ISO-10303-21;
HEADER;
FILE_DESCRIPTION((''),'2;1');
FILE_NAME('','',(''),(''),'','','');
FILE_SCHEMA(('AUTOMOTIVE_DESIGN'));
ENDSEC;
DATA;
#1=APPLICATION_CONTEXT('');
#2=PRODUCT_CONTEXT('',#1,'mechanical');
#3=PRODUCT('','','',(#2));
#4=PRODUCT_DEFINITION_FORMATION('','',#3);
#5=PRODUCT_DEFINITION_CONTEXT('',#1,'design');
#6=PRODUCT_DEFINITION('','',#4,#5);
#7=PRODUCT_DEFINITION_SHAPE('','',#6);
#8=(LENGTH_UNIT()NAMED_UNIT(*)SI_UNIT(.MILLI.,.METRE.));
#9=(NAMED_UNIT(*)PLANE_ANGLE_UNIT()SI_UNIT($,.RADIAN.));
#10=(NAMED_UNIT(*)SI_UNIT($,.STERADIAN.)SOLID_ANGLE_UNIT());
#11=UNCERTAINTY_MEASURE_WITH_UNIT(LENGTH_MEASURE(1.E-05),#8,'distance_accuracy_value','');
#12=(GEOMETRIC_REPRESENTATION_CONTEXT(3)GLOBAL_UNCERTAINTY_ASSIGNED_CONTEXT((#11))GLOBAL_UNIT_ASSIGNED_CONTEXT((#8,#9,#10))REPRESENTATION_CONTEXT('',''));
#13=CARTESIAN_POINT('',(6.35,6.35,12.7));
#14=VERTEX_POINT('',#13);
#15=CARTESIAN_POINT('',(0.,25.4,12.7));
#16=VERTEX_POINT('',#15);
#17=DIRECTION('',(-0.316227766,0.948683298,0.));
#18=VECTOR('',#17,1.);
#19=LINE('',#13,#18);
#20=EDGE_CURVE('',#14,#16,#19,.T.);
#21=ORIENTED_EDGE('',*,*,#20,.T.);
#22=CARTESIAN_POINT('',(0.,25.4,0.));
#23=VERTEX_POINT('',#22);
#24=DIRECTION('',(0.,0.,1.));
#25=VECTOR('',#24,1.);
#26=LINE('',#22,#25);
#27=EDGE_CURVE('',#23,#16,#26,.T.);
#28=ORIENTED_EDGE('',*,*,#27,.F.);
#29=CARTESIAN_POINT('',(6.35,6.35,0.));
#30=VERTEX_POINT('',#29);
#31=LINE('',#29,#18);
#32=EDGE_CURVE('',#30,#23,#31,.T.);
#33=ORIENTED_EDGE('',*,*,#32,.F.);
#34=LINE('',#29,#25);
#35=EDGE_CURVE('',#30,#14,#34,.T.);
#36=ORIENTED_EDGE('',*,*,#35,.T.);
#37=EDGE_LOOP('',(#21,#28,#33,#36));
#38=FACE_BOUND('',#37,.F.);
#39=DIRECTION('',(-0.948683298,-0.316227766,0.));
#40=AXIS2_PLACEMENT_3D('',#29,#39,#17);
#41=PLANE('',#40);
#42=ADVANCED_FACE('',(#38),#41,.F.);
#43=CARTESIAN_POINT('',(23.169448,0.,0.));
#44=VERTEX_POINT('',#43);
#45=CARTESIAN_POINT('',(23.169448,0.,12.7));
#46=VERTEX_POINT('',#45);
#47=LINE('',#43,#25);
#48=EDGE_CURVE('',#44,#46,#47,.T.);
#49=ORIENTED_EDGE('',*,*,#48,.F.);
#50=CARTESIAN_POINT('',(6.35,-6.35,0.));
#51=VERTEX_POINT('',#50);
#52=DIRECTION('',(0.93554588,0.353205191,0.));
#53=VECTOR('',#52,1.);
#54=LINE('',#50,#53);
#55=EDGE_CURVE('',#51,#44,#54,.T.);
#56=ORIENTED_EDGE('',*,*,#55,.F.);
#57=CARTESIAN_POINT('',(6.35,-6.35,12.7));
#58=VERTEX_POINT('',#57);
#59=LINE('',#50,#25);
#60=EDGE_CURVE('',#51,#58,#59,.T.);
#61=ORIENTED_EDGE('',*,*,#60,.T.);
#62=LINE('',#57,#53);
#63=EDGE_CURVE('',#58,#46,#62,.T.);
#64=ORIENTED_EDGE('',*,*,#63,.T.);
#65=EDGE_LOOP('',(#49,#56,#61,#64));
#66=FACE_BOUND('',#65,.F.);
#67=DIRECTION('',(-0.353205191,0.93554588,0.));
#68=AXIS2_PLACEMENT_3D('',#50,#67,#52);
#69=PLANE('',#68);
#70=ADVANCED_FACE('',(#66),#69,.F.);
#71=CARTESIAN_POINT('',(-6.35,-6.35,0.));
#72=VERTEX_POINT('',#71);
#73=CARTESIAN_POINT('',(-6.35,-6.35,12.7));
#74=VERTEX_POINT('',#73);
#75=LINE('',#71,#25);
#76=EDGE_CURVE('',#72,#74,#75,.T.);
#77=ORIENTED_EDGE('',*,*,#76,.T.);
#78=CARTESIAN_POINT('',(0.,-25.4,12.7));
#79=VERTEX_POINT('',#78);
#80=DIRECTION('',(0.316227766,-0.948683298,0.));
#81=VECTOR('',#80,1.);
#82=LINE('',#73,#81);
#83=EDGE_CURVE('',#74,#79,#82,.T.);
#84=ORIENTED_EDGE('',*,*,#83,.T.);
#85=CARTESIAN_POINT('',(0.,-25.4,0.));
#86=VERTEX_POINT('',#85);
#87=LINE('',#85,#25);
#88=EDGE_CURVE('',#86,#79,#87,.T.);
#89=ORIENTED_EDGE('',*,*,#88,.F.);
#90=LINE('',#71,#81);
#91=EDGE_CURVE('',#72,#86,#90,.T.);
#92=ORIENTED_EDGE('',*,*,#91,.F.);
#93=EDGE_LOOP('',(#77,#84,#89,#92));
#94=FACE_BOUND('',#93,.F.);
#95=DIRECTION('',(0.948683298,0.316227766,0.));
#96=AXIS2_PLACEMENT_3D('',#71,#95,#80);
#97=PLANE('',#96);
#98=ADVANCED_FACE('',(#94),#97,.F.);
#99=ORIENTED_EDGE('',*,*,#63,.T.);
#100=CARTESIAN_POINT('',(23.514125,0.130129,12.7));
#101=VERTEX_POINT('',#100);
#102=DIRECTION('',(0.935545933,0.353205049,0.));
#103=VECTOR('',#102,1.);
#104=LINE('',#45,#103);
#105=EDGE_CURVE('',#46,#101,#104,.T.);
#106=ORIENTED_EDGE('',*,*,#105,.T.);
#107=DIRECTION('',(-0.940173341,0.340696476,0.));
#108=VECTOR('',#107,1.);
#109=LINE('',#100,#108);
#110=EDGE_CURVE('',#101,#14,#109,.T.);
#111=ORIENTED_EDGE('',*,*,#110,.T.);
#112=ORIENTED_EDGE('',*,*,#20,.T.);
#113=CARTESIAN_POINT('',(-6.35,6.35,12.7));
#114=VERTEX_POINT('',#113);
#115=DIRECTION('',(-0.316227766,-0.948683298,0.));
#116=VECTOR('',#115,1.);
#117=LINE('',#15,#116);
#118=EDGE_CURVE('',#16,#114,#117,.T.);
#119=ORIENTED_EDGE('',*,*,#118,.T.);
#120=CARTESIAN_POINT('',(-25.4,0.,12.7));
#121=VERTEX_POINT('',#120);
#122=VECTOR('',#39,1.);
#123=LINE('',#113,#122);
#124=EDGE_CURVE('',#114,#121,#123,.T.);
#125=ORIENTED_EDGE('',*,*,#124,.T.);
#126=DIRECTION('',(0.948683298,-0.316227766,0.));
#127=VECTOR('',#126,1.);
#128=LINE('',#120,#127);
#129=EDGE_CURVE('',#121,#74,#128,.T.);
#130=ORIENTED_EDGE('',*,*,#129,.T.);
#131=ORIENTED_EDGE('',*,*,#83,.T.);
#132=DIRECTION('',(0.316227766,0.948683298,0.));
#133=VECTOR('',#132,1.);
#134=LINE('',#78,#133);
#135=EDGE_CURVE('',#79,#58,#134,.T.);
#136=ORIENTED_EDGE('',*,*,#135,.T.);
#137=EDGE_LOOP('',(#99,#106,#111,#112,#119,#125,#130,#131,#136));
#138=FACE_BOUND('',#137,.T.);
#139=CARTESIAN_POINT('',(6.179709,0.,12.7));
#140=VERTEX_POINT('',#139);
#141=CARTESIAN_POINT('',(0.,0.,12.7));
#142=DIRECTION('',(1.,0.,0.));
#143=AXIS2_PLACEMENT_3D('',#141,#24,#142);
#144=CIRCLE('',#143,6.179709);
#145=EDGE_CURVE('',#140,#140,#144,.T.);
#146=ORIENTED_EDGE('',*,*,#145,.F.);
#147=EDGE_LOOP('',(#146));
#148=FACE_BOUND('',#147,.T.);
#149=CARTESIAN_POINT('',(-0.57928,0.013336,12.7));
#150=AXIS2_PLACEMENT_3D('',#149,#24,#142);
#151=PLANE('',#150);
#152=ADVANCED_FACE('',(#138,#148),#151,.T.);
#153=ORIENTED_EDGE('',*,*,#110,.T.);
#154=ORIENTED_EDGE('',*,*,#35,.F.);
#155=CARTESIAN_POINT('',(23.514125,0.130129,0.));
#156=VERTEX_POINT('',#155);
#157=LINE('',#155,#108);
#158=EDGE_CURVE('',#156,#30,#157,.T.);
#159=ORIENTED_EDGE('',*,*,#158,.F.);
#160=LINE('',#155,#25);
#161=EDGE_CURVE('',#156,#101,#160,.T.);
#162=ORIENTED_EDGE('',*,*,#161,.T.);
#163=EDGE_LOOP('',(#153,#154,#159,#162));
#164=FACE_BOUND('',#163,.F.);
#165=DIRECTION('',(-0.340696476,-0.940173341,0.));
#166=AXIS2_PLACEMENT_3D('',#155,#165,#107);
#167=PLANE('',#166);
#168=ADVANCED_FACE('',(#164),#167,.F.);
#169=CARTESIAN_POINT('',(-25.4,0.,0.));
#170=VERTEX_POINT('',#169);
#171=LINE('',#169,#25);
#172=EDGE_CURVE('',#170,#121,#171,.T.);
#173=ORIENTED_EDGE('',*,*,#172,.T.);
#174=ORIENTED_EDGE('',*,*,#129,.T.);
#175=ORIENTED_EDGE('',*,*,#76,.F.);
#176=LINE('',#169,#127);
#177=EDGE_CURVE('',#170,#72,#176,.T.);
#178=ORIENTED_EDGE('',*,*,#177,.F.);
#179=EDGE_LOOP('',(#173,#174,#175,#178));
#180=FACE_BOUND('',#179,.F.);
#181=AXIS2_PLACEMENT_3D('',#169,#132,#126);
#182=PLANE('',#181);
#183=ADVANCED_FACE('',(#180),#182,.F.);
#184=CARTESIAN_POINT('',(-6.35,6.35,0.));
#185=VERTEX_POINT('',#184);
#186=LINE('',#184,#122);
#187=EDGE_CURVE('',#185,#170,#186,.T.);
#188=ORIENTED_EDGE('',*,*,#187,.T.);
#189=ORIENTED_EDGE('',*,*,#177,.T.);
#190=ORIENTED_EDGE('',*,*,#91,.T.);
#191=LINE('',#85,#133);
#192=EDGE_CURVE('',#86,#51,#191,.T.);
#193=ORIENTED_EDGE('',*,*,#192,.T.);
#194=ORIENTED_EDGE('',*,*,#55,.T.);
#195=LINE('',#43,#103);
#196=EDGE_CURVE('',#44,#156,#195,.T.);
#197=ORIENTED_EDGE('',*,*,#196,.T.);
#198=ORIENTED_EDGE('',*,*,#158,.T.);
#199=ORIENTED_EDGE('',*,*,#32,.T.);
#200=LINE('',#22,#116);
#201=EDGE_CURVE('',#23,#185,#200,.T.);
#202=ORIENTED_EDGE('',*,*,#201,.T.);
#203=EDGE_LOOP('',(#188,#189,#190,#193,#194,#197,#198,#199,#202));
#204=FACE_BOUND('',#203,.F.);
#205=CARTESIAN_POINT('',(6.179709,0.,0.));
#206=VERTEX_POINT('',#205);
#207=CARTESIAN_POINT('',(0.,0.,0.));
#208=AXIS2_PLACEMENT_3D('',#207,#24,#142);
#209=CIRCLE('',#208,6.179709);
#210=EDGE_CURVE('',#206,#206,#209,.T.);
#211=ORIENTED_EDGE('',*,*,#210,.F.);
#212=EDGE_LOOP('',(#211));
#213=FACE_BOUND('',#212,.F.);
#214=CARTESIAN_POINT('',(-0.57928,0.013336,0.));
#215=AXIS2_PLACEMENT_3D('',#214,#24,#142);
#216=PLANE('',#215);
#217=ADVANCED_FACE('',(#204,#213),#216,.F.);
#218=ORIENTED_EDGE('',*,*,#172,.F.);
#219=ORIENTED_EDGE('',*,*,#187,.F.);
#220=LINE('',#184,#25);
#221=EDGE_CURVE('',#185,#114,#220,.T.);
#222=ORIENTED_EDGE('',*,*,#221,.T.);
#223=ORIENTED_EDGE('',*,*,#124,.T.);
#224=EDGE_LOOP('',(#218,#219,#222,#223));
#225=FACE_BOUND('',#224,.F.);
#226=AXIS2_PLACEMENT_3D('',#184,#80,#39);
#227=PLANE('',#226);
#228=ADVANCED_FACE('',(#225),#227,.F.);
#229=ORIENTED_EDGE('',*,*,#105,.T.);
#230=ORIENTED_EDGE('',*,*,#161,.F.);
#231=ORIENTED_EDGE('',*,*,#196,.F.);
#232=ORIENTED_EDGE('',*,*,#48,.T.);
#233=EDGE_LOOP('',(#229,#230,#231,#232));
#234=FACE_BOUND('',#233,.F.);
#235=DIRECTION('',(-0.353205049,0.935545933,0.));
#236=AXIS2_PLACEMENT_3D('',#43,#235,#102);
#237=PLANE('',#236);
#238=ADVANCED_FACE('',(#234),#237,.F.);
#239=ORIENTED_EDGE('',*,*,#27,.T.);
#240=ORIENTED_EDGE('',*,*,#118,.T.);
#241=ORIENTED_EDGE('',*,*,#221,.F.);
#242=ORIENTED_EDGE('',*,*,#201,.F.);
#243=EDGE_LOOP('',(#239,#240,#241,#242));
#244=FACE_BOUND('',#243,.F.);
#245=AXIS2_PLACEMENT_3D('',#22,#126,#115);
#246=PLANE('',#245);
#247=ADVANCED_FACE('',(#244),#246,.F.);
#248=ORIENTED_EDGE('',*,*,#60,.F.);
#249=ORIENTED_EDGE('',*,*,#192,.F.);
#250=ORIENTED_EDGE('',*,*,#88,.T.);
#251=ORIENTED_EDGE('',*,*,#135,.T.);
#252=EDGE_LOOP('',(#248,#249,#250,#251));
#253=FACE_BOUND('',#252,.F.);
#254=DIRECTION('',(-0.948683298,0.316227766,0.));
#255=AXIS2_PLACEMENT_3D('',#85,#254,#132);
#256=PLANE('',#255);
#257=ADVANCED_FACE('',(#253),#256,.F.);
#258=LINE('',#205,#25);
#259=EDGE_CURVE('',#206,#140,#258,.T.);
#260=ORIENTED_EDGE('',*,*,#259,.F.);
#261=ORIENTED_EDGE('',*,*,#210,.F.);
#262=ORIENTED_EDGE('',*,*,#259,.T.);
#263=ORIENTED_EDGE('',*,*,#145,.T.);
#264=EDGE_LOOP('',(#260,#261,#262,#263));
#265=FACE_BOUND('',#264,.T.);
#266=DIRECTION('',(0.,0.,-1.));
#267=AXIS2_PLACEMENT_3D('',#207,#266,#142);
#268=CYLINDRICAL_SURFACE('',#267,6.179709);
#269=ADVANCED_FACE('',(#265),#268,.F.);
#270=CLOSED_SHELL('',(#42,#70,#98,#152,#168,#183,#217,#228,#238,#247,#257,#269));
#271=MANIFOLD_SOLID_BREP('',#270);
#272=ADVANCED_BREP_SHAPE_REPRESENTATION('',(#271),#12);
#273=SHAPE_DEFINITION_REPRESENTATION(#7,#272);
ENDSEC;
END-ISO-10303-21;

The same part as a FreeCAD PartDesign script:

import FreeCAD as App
import Part
import Sketcher
Q = App.Units.Quantity

doc = App.newDocument("Part")
body = doc.addObject("PartDesign::Body", "Body")

# Sketch on XY plane
sketch1 = doc.addObject("Sketcher::SketchObject", "Sketch")
body.addObject(sketch1)
sketch1.AttachmentSupport = (doc.XY_Plane, [""])
sketch1.MapMode = "FlatFace"
sketch1.addGeometry([
    Part.LineSegment(App.Vector(6.35, -6.35, 0), App.Vector(23.169448, 0, 0)),  # 0
    Part.LineSegment(App.Vector(23.169448, 0, 0), App.Vector(23.514125, 0.130129, 0)),  # 1
    Part.LineSegment(App.Vector(23.514125, 0.130129, 0), App.Vector(6.35, 6.35, 0)),  # 2
    Part.LineSegment(App.Vector(6.35, 6.35, 0), App.Vector(0, 25.4, 0)),  # 3
    Part.LineSegment(App.Vector(0, 25.4, 0), App.Vector(-6.35, 6.35, 0)),  # 4
    Part.LineSegment(App.Vector(-6.35, 6.35, 0), App.Vector(-25.4, 0, 0)),  # 5
    Part.LineSegment(App.Vector(-25.4, 0, 0), App.Vector(-6.35, -6.35, 0)),  # 6
    Part.LineSegment(App.Vector(-6.35, -6.35, 0), App.Vector(0, -25.4, 0)),  # 7
    Part.LineSegment(App.Vector(0, -25.4, 0), App.Vector(6.35, -6.35, 0)),  # 8
    Part.Circle(App.Vector(0, 0, 0), App.Vector(0, 0, 1), 6.179709),  # 9
], False)
sketch1.addConstraint([
    Sketcher.Constraint("Coincident", 0, 2, 1, 1),
    Sketcher.Constraint("Coincident", 1, 2, 2, 1),
    Sketcher.Constraint("Coincident", 2, 2, 3, 1),
    Sketcher.Constraint("Coincident", 3, 2, 4, 1),
    Sketcher.Constraint("Coincident", 4, 2, 5, 1),
    Sketcher.Constraint("Coincident", 5, 2, 6, 1),
    Sketcher.Constraint("Coincident", 6, 2, 7, 1),
    Sketcher.Constraint("Coincident", 7, 2, 8, 1),
    Sketcher.Constraint("Coincident", 8, 2, 0, 1),
    Sketcher.Constraint("Coincident", 9, 3, -1, 1),
    Sketcher.Constraint("Symmetric", 2, 2, 6, 2, -1, 1),
    Sketcher.Constraint("Symmetric", 3, 2, 7, 2, -1, 1),
    Sketcher.Constraint("Symmetric", 4, 2, 8, 2, -1, 1),
    Sketcher.Constraint("Symmetric", 2, 2, 4, 2, -2),
    Sketcher.Constraint("PointOnObject", 0, 2, -1),
    Sketcher.Constraint("PointOnObject", 3, 2, -2),
    Sketcher.Constraint("PointOnObject", 5, 2, -1),
    Sketcher.Constraint("Parallel", 0, 1),
    Sketcher.Constraint("Perpendicular", 3, 5),
    Sketcher.Constraint("Equal", 4, 5),
    Sketcher.Constraint("DistanceY", -1, 1, 3, 2, Q("1 in")),
    Sketcher.Constraint("DistanceX", 4, 2, 2, 2, Q("0.5 in")),
    Sketcher.Constraint("Diameter", 9, Q("12.359418 mm")),
    Sketcher.Constraint("Distance", 0, Q("17.978218 mm")),
    Sketcher.Constraint("Distance", 2, Q("18.256341 mm")),
])
pad1 = doc.addObject("PartDesign::Pad", "Pad")
body.addObject(pad1)
pad1.Profile = sketch1
pad1.Length = Q("0.5 in")

doc.recompute()
